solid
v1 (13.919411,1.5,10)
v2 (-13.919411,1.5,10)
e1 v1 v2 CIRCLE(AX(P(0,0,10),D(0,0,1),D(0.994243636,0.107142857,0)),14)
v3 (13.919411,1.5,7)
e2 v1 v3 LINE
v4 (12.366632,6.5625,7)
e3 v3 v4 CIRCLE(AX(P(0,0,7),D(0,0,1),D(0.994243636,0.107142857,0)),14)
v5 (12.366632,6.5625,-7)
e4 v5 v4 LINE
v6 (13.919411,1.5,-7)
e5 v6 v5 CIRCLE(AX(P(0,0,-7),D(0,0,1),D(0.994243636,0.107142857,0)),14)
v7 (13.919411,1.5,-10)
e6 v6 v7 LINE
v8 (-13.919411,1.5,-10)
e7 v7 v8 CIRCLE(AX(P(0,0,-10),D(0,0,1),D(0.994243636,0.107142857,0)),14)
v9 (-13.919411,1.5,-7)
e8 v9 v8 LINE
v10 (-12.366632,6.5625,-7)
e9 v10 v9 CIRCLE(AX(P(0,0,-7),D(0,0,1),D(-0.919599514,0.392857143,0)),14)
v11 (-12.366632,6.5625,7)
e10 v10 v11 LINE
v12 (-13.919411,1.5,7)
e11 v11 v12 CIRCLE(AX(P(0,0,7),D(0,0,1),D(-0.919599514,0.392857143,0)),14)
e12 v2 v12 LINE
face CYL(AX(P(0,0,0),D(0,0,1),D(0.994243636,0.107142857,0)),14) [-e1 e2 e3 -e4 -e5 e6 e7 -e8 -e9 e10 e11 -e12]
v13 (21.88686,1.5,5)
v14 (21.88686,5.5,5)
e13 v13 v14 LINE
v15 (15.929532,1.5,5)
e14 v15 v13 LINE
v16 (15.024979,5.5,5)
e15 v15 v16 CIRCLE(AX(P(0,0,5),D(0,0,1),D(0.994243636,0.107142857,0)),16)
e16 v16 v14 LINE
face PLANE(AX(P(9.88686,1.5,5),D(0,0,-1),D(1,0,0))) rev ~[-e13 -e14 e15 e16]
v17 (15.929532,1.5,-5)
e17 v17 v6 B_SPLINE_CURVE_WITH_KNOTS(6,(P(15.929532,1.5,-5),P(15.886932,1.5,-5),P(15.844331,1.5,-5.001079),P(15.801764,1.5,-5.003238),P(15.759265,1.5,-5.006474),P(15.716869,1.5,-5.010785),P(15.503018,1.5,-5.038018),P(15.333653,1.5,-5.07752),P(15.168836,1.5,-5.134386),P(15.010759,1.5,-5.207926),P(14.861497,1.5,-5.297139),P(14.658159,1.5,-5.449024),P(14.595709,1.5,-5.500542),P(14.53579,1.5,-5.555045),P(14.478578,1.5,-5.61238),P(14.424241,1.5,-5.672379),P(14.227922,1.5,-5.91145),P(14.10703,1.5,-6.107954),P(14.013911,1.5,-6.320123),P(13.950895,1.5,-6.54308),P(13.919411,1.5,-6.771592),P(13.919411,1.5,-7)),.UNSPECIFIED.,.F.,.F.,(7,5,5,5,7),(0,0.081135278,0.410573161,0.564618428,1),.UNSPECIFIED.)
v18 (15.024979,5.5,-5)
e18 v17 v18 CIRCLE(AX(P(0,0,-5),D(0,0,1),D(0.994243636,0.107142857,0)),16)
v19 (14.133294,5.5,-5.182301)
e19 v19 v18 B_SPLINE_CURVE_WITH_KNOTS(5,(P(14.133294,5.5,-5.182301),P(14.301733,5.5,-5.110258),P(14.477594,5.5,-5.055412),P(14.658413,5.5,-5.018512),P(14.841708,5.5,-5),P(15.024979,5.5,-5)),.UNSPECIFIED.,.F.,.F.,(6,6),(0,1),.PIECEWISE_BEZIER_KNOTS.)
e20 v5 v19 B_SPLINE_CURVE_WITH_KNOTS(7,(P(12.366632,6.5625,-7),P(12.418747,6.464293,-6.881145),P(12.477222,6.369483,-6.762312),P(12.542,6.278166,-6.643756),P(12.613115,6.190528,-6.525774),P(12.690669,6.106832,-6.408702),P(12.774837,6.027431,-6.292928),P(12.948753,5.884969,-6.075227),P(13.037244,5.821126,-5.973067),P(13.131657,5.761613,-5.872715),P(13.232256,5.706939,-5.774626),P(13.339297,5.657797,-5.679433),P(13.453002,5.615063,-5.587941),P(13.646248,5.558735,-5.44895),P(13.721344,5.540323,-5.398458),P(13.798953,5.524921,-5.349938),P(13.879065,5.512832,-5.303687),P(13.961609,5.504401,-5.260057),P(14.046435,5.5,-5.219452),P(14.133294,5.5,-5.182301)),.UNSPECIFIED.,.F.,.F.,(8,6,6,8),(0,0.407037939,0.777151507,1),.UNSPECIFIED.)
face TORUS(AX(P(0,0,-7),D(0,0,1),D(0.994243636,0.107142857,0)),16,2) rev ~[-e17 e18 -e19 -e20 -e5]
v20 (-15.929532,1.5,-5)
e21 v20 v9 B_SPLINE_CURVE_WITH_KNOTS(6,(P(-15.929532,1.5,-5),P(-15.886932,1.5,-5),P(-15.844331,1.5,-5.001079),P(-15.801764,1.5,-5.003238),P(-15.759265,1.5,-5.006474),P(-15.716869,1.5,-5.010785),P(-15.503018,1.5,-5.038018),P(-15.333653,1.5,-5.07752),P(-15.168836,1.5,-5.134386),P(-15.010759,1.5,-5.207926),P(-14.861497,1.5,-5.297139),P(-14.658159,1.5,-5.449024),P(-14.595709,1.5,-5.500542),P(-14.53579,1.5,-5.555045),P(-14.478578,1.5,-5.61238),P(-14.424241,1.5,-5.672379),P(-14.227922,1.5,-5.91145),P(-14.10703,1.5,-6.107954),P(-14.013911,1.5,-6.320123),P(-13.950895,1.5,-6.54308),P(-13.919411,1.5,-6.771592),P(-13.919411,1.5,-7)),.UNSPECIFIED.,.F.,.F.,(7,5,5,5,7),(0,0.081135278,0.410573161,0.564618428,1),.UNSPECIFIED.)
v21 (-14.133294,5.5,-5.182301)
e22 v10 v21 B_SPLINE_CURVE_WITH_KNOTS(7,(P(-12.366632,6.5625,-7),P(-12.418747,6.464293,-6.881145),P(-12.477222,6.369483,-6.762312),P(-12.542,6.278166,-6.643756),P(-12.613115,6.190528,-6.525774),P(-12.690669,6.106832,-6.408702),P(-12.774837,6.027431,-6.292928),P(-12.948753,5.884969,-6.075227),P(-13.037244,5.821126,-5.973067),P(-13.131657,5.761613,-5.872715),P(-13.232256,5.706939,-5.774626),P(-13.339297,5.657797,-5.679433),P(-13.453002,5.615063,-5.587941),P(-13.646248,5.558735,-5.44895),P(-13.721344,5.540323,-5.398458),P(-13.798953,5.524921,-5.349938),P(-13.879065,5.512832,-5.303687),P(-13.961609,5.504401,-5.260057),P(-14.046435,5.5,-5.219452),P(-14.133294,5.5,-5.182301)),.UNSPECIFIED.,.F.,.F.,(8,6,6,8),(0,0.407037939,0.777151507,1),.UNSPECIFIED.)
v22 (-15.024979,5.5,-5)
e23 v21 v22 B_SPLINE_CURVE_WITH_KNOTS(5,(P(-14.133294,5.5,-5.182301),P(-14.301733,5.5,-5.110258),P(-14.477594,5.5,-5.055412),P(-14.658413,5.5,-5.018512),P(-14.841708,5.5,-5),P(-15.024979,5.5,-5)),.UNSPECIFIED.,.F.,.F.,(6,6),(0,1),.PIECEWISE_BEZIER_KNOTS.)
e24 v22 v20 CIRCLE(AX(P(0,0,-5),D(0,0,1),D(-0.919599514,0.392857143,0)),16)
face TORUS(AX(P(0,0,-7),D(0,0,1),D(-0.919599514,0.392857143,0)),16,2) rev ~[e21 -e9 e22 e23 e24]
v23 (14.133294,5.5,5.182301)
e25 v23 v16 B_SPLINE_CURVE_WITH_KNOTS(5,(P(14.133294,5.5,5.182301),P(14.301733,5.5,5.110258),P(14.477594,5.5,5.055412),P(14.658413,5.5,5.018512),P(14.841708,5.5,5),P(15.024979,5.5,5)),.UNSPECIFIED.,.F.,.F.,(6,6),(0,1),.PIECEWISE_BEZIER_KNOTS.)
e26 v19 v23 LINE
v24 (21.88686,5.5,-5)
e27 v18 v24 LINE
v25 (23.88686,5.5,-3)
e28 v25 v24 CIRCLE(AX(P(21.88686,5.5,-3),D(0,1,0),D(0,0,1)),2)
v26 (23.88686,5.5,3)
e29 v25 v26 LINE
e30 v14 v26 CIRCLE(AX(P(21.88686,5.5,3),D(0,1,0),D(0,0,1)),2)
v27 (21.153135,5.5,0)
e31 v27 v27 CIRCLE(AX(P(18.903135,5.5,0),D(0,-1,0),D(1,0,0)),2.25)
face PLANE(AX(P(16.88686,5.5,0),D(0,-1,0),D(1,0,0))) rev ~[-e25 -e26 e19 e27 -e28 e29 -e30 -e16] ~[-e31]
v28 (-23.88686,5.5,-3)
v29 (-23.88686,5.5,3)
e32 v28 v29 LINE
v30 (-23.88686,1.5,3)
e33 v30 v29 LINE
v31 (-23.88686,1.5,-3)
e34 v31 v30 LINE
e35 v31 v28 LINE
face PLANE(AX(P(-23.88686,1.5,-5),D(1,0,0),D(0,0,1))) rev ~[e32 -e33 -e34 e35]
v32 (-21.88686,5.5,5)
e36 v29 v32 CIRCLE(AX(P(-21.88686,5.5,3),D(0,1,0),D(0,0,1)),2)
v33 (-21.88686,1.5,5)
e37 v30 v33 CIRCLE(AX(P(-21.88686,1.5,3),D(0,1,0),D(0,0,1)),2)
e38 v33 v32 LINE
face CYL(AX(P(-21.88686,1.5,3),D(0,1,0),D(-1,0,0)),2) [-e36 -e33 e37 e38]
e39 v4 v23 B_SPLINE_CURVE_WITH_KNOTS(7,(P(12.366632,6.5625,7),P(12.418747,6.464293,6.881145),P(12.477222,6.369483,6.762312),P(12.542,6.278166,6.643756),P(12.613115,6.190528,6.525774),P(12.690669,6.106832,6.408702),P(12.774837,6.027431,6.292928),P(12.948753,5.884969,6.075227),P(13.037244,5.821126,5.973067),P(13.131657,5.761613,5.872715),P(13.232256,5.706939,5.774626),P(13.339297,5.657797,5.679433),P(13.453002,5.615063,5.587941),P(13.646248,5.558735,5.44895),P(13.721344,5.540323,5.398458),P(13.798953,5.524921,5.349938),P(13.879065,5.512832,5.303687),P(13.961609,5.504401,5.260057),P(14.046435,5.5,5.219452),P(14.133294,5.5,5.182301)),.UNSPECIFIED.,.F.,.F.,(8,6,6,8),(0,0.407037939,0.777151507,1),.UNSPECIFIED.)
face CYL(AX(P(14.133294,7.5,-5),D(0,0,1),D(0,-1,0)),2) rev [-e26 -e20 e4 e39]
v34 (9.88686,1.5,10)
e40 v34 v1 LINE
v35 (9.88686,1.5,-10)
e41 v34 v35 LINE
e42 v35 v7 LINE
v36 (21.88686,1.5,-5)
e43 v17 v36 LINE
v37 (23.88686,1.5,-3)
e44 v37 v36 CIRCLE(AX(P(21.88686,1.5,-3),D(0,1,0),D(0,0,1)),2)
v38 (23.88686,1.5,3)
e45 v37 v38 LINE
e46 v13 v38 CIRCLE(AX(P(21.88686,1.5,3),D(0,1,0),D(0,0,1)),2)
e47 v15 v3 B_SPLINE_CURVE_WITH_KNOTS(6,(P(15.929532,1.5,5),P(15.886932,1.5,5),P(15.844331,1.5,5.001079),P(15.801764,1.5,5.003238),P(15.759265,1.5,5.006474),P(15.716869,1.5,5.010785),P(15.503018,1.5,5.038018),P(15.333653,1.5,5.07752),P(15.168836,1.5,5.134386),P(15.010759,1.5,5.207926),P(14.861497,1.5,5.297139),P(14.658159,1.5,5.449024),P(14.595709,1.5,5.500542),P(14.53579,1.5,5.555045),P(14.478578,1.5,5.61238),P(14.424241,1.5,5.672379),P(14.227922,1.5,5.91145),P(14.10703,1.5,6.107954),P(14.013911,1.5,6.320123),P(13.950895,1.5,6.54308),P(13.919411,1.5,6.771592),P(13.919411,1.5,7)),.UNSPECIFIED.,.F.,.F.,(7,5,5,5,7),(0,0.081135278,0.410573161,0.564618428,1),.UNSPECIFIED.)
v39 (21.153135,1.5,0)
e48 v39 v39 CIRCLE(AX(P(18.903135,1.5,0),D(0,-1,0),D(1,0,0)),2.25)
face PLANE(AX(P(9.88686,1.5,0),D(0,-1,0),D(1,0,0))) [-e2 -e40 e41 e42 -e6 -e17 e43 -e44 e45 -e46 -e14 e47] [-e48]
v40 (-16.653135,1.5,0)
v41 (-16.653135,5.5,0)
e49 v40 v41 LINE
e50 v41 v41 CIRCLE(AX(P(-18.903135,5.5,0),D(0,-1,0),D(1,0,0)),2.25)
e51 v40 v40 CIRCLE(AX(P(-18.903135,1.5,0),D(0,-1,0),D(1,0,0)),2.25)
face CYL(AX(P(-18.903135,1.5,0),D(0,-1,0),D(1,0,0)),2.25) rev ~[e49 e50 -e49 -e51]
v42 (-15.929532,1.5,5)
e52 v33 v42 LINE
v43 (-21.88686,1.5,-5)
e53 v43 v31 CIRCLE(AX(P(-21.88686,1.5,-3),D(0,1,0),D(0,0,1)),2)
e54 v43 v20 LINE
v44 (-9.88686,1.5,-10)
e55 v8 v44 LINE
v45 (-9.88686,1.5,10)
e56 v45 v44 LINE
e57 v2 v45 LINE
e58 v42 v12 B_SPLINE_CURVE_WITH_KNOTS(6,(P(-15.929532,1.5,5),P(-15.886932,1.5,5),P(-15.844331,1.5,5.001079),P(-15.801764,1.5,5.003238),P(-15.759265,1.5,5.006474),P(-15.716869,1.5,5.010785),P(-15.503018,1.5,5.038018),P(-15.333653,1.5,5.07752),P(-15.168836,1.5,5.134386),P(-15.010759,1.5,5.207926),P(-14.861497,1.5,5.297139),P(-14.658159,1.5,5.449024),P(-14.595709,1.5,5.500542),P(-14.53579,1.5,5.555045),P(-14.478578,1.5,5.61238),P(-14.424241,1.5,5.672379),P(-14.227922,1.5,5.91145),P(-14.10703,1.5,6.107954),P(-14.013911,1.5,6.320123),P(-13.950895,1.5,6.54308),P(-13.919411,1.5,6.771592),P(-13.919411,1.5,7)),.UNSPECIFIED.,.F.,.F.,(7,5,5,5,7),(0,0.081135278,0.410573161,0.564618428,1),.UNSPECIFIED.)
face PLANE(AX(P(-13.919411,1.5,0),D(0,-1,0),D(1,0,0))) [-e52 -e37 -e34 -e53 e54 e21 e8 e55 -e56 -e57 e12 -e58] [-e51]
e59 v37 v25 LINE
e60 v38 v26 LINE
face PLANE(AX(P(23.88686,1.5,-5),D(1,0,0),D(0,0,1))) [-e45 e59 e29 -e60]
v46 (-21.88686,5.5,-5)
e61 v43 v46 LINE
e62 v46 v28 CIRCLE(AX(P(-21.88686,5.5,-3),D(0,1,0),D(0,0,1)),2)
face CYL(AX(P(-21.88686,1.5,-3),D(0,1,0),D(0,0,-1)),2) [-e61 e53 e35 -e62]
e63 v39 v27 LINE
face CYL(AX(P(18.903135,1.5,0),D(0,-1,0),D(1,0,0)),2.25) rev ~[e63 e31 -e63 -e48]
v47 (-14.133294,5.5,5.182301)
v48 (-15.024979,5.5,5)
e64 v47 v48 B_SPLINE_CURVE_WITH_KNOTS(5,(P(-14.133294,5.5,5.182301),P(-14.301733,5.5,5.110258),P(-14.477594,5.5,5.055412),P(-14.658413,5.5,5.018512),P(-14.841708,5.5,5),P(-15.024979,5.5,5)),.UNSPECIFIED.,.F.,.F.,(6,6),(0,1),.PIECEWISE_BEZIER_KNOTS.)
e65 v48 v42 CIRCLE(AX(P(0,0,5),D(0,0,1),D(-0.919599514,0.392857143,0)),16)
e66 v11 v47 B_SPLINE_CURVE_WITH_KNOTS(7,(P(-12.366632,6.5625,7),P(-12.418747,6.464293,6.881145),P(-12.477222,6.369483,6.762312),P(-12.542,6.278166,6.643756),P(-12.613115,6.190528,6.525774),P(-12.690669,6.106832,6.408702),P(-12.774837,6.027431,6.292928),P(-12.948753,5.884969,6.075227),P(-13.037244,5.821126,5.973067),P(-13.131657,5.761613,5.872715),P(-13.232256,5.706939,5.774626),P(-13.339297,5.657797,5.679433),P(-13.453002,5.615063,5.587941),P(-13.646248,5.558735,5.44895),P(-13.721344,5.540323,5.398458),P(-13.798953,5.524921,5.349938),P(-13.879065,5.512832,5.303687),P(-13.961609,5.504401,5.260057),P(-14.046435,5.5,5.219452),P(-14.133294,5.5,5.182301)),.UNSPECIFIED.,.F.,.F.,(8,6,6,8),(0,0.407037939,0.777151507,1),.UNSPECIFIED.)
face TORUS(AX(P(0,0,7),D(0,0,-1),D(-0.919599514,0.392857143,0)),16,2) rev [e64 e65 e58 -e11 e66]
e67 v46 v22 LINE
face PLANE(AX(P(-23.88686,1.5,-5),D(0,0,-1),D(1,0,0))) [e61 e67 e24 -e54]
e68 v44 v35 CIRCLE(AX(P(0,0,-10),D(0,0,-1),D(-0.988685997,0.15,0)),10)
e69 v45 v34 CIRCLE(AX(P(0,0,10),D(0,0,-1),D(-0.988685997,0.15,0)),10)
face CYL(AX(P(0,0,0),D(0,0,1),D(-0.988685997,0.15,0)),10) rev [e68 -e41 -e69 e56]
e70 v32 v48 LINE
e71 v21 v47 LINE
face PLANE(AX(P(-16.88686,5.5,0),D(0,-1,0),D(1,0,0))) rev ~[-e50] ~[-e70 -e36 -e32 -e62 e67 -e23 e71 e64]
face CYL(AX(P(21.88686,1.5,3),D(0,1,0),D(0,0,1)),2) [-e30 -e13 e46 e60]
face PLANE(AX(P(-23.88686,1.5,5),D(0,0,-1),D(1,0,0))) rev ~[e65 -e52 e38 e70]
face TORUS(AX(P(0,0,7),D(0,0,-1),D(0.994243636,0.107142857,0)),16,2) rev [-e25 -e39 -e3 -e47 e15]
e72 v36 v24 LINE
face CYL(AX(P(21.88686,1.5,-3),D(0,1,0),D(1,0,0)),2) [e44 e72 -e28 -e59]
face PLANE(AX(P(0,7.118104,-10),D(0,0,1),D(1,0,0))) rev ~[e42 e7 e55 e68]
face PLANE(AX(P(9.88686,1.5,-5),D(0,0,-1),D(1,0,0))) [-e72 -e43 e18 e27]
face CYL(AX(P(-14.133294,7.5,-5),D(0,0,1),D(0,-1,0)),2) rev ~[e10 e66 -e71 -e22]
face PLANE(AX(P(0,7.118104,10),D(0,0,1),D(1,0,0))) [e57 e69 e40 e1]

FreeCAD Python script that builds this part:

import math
import FreeCAD as App
import Part
import Sketcher


def edges_at(feature, points):
    """Names of the edges that pass closest to the given points."""
    edges = feature.Shape.Edges
    near = lambda p: min(range(len(edges)), key=lambda i: edges[i].distToShape(Part.Vertex(*p))[0])
    return sorted({f"Edge{near(p) + 1}" for p in points})


def add_polygon(sketch, points):
    """Adds a closed chain of lines whose ends are joined by coincident constraints."""
    first, n = sketch.GeometryCount, len(points)
    for a, b in zip(points, points[1:] + points[:1]):
        sketch.addGeometry(Part.LineSegment(App.Vector(*a, 0), App.Vector(*b, 0)), False)
    for i in range(n):
        sketch.addConstraint(Sketcher.Constraint("Coincident", first + i, 2, first + (i + 1) % n, 1))

doc = App.newDocument("Part")
body = doc.addObject("PartDesign::Body", "Body")

sketch1 = body.newObject("Sketcher::SketchObject", "Sketch")
sketch1.AttachmentSupport = (doc.getObject("XY_Plane"), [""])
sketch1.MapMode = "FlatFace"
sketch1.addGeometry([
    Part.LineSegment(App.Vector(-13.9, 1.5, 0), App.Vector(-9.9, 1.5, 0)),
    Part.ArcOfCircle(Part.Circle(App.Vector(0, 0, 0), App.Vector(0, 0, 1), 10), math.radians(9), math.radians(171)),
    Part.LineSegment(App.Vector(9.9, 1.5, 0), App.Vector(13.9, 1.5, 0)),
    Part.ArcOfCircle(Part.Circle(App.Vector(0, 0, 0), App.Vector(0, 0, 1), 14), math.radians(6), math.radians(174)),
], False)
sketch1.addConstraint([
    Sketcher.Constraint("Coincident", 0, 2, 1, 2),
    Sketcher.Constraint("Coincident", 1, 1, 2, 1),
    Sketcher.Constraint("Coincident", 2, 2, 3, 1),
    Sketcher.Constraint("Coincident", 3, 2, 0, 1),
    Sketcher.Constraint("Horizontal", 0),
    Sketcher.Constraint("Horizontal", 2),
    Sketcher.Constraint("Coincident", 1, 3, -1, 1),
    Sketcher.Constraint("Coincident", 3, 3, -1, 1),
    Sketcher.Constraint("Horizontal", 0, 2, 1, 1),
    Sketcher.Constraint("Radius", 1, 10.0),
    Sketcher.Constraint("Radius", 3, 14.0),
    Sketcher.Constraint("DistanceY", -1, 1, 0, 2, 1.5),
])
pad1 = body.newObject("PartDesign::Pad", "Pad")
pad1.Profile = sketch1
pad1.Length = 20
pad1.Midplane = True

sketch2 = body.newObject("Sketcher::SketchObject", "Sketch001")
sketch2.AttachmentSupport = (doc.getObject("XZ_Plane"), [""])
sketch2.MapMode = "FlatFace"
sketch2.AttachmentOffset = App.Placement(App.Vector(0, 0, -1.5), App.Rotation())
add_polygon(sketch2, [(9.9, 5), (9.9, -5), (23.9, -5), (23.9, 5)])
sketch2.addGeometry(Part.Circle(App.Vector(18.9, 0, 0), App.Vector(0, 0, 1), 2.2), False)
add_polygon(sketch2, [(-23.9, 5), (-23.9, -5), (-9.9, -5), (-9.9, 5)])
sketch2.addGeometry(Part.Circle(App.Vector(-18.9, 0, 0), App.Vector(0, 0, 1), 2.2), False)
sketch2.addConstraint([
    Sketcher.Constraint("Vertical", 0),
    Sketcher.Constraint("Horizontal", 1),
    Sketcher.Constraint("Vertical", 2),
    Sketcher.Constraint("Horizontal", 3),
    Sketcher.Constraint("Vertical", 5),
    Sketcher.Constraint("Horizontal", 6),
    Sketcher.Constraint("Vertical", 7),
    Sketcher.Constraint("Horizontal", 8),
    Sketcher.Constraint("Equal", 4, 9),
    Sketcher.Constraint("Symmetric", 4, 3, 9, 3, -1, 1),
    Sketcher.Constraint("Symmetric", 2, 2, 5, 2, -1, 1),
    Sketcher.Constraint("Symmetric", 0, 2, 7, 2, -1, 1),
    Sketcher.Constraint("PointOnObject", 4, 3, -1),
    Sketcher.Constraint("Horizontal", 1, 2, 5, 2),
    Sketcher.Constraint("Diameter", 4, 4.5),
    Sketcher.Constraint("DistanceX", 1, 1, 1, 2, 14.0),
    Sketcher.Constraint("DistanceY", 0, 2, 0, 1, 10.0),
    Sketcher.Constraint("DistanceX", -1, 1, 0, 2, 9.88686),
    Sketcher.Constraint("DistanceX", 9, 3, 4, 3, 37.806271),
])
pad2 = body.newObject("PartDesign::Pad", "Pad001")
pad2.Profile = sketch2
pad2.Length = 4
pad2.Reversed = True
doc.recompute()

fillet = body.newObject("PartDesign::Fillet", "Fillet")
fillet.Base = (pad2, edges_at(pad2, [
    (-12.874, 5.5, 0),
    (12.874, 5.5, 0),
    (13.545, 3.539, -5),
    (13.545, 3.539, 5),
    (23.887, 3.5, 5),
    (23.887, 3.5, -5),
    (-23.887, 3.5, 5),
    (-13.545, 3.539, -5),
    (-23.887, 3.5, -5),
    (-13.545, 3.539, 5),
]))
fillet.Radius = 2

doc.recompute()
